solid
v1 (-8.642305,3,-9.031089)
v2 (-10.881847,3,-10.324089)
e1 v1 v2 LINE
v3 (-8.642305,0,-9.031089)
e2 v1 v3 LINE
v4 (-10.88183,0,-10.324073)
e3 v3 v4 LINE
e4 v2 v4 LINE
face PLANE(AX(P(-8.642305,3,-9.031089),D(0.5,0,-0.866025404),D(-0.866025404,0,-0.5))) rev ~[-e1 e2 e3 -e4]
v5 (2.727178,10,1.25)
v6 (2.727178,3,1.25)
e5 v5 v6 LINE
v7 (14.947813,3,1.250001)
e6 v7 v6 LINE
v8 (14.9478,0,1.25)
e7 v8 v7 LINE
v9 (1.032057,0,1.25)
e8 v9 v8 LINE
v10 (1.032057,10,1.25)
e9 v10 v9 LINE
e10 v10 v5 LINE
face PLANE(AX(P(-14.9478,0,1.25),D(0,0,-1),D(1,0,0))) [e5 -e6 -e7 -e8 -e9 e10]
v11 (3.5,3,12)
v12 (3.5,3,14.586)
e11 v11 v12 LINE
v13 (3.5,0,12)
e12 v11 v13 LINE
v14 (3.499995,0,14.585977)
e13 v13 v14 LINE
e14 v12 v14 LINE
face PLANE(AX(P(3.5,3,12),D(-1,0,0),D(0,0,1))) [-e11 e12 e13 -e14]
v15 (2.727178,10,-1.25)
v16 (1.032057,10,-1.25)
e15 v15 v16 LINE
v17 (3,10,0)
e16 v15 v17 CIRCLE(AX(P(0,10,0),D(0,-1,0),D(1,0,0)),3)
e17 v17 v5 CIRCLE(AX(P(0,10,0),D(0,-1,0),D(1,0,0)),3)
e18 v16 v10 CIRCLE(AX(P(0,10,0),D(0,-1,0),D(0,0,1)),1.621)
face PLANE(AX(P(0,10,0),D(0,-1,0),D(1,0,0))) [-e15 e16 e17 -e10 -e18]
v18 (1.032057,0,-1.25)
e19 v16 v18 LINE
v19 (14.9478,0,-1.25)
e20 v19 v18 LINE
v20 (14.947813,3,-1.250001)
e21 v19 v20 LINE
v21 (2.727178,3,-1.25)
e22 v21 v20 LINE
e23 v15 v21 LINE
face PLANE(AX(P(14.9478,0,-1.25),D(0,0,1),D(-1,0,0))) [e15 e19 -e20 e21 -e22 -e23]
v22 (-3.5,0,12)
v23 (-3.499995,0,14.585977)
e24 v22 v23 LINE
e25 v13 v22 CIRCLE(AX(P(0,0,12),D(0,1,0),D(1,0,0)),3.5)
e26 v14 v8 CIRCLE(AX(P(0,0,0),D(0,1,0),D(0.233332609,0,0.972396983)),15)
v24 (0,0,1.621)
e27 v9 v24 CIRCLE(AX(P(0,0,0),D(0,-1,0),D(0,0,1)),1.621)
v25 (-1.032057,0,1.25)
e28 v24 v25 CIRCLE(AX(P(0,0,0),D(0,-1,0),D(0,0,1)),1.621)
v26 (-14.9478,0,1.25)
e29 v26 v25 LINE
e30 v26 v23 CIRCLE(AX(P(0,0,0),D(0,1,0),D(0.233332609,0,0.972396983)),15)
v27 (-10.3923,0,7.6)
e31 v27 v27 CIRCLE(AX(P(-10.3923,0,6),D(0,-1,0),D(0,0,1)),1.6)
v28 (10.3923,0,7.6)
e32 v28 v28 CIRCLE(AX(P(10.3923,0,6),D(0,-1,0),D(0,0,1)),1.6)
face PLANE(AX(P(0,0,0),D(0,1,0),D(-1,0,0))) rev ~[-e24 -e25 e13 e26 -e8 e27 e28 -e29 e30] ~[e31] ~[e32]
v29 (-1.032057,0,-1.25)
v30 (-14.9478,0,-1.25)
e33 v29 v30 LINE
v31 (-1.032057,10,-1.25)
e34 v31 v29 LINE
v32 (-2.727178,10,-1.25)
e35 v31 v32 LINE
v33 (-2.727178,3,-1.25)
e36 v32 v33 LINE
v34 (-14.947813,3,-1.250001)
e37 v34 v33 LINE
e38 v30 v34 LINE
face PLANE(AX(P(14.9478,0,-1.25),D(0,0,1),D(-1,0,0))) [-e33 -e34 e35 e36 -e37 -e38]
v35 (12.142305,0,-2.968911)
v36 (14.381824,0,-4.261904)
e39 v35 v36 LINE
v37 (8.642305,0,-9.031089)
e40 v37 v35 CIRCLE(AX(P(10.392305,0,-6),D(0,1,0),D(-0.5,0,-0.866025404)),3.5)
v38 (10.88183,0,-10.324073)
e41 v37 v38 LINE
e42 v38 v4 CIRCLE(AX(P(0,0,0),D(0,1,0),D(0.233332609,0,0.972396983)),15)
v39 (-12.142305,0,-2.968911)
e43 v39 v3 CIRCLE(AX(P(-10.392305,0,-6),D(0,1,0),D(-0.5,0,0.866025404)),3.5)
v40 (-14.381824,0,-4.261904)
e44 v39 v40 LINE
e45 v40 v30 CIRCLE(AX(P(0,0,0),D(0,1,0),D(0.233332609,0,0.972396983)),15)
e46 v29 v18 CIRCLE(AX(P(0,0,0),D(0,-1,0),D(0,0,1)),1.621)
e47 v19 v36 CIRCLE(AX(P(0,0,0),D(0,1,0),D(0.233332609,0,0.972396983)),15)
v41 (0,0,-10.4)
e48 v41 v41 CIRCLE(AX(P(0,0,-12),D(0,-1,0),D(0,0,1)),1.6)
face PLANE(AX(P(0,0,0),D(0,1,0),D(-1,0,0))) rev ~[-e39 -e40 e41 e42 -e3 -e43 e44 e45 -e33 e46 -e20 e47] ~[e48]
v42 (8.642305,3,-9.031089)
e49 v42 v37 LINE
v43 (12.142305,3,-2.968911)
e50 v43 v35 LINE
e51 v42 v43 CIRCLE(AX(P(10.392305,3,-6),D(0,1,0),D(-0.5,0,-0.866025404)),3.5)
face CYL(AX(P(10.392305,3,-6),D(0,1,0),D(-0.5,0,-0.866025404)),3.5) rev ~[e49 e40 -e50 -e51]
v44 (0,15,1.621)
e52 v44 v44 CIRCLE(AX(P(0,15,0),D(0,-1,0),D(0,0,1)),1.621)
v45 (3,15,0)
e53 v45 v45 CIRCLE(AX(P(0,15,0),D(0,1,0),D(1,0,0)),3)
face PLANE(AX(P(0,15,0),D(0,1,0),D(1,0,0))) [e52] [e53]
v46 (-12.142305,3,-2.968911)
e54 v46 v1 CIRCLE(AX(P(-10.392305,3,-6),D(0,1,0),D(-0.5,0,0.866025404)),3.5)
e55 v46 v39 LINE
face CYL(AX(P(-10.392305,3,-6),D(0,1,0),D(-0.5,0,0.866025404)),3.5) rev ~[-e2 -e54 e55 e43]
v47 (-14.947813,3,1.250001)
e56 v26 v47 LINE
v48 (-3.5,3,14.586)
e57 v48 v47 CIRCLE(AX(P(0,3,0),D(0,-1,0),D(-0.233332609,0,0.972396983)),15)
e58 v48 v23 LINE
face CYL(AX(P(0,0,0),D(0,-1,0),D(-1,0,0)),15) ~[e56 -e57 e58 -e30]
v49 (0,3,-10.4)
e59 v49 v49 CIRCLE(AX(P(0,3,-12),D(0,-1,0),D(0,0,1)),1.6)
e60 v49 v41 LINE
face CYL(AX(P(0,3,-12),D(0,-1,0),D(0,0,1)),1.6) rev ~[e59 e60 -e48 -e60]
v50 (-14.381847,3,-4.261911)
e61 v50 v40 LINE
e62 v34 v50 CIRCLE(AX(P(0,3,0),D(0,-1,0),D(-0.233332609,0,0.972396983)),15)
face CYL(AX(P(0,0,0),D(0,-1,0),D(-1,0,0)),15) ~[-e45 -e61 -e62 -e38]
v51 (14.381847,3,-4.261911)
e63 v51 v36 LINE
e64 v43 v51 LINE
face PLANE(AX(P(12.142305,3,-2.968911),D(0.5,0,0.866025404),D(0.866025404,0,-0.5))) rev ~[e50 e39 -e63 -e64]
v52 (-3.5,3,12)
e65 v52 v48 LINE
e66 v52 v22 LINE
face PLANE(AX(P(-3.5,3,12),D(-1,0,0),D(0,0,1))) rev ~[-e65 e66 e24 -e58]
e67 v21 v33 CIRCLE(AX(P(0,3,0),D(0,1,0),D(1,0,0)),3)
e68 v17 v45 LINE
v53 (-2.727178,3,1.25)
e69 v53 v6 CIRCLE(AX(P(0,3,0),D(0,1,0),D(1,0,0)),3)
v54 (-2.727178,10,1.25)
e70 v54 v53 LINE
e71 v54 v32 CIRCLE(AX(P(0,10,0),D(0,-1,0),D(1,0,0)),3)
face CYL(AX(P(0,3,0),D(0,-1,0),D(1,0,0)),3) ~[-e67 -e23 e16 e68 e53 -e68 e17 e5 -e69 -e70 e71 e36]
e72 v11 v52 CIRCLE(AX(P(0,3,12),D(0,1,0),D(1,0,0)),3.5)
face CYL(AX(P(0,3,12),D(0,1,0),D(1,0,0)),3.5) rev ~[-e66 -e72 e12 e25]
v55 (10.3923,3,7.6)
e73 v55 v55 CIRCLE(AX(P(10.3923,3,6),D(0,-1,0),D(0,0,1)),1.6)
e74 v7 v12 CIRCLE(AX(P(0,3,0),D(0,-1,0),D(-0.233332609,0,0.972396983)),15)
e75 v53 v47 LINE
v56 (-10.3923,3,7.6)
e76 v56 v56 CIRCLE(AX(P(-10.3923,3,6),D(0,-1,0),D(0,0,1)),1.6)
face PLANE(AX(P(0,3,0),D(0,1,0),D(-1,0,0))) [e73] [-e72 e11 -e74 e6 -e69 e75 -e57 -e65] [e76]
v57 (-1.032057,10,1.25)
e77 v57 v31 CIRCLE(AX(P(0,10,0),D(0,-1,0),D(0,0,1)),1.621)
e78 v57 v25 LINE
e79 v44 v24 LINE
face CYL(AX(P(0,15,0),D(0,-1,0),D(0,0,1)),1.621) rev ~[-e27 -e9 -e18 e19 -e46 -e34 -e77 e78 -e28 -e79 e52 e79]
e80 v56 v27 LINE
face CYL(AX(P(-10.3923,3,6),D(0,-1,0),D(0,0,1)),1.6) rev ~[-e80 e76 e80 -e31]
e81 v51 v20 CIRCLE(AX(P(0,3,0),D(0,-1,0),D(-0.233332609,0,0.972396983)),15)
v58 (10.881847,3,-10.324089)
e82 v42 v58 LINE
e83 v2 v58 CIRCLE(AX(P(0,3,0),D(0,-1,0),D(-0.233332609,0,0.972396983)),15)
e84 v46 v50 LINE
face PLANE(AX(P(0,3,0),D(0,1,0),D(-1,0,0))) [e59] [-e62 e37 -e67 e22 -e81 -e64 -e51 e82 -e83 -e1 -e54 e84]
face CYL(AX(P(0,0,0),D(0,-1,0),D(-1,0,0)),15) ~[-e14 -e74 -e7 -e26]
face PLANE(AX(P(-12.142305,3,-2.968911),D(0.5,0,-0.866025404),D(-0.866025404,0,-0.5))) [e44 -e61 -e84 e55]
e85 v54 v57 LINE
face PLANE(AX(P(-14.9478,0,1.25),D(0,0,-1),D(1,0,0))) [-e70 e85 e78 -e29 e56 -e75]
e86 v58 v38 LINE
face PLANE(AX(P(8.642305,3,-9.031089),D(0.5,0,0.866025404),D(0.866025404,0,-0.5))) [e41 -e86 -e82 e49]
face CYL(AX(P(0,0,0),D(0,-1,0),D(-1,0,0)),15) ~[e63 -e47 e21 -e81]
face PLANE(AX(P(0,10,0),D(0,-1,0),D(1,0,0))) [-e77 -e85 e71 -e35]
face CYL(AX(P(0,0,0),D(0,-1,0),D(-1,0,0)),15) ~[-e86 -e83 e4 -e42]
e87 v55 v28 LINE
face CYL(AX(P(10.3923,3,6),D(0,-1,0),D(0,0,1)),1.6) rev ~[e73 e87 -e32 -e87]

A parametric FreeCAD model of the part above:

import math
import FreeCAD as App
import Part
import Sketcher

V = App.Vector
Q = App.Units.Quantity

doc = App.newDocument("Part")
body = doc.addObject("PartDesign::Body", "Body")

sketch1 = body.newObject("Sketcher::SketchObject", "Sketch")
sketch1.AttachmentSupport = (doc.getObject("XZ_Plane"), [""])
sketch1.MapMode = "FlatFace"
sketch1.addGeometry(Part.Circle(V(0, 0, 0), V(0, 0, 1), 15), False)
sketch1.addConstraint([
    Sketcher.Constraint("Coincident", 0, 3, -1, 1),
    Sketcher.Constraint("Diameter", 0, Q("30 mm")),
])
pad1 = body.newObject("PartDesign::Pad", "Pad")
pad1.Profile = sketch1
pad1.Length = 3
pad1.Reversed = True

sketch2 = body.newObject("Sketcher::SketchObject", "Sketch001")
sketch2.AttachmentSupport = (doc.getObject("XZ_Plane"), [""])
sketch2.MapMode = "FlatFace"
sketch2.AttachmentOffset = App.Placement(V(0, 0, -3), App.Rotation())
sketch2.addGeometry([
    Part.Circle(V(0, -12, 0), V(0, 0, 1), 1.6),
    Part.Circle(V(-10.3923, 6, 0), V(0, 0, 1), 1.6),
    Part.Circle(V(10.3923, 6, 0), V(0, 0, 1), 1.6),
], False)
sketch2.addConstraint([
    Sketcher.Constraint("Equal", 0, 1),
    Sketcher.Constraint("Equal", 1, 2),
    Sketcher.Constraint("Symmetric", 1, 3, 2, 3, -2),
    Sketcher.Constraint("PointOnObject", 0, 3, -2),
    Sketcher.Constraint("Diameter", 0, Q("3.2 mm")),
    Sketcher.Constraint("DistanceY", 0, 3, -1, 1, Q("12 mm")),
    Sketcher.Constraint("DistanceY", -1, 1, 1, 3, Q("6 mm")),
    Sketcher.Constraint("DistanceX", 1, 3, -1, 1, Q("10.3923 mm")),
])
doc.recompute()
hole = body.newObject("PartDesign::Hole", "Hole")
hole.Profile = sketch2
hole.ThreadType = "None"
hole.Diameter = 3.2
hole.DepthType = "ThroughAll"
hole.Reversed = True

sketch3 = body.newObject("Sketcher::SketchObject", "Sketch002")
sketch3.AttachmentSupport = (doc.getObject("XZ_Plane"), [""])
sketch3.MapMode = "FlatFace"
sketch3.AttachmentOffset = App.Placement(V(0, 0, -3), App.Rotation())
sketch3.addGeometry([
    Part.LineSegment(V(3.5, 14.586, 0), V(3.5, 12, 0)),
    Part.ArcOfCircle(Part.Circle(V(0, 12, 0), V(0, 0, 1), 3.5), math.radians(180), math.radians(360)),
    Part.LineSegment(V(-3.5, 12, 0), V(-3.5, 14.586, 0)),
    Part.ArcOfCircle(Part.Circle(V(0, 0, 0), V(0, 0, 1), 15), math.radians(76.506644), math.radians(103.493356)),
], False)
sketch3.addConstraint([
    Sketcher.Constraint("Tangent", 0, 2, 1, 2),
    Sketcher.Constraint("Tangent", 1, 1, 2, 1),
    Sketcher.Constraint("Coincident", 2, 2, 3, 2),
    Sketcher.Constraint("Coincident", 3, 1, 0, 1),
    Sketcher.Constraint("Vertical", 0),
    Sketcher.Constraint("Vertical", 2),
    Sketcher.Constraint("Coincident", 3, 3, -1, 1),
    Sketcher.Constraint("PointOnObject", 1, 3, -2),
    Sketcher.Constraint("Radius", 1, Q("3.5 mm")),
    Sketcher.Constraint("DistanceY", -1, 1, 1, 3, Q("12 mm")),
    Sketcher.Constraint("Radius", 3, Q("15 mm")),
])
pocket1 = body.newObject("PartDesign::Pocket", "Pocket")
pocket1.Profile = sketch3
pocket1.Type = "ThroughAll"
pocket1.Reversed = True
doc.recompute()

polarpattern = body.newObject("PartDesign::PolarPattern", "PolarPattern")
polarpattern.Originals = [pocket1]
polarpattern.Axis = (doc.getObject("Y_Axis"), [""])
polarpattern.Angle = 360
polarpattern.Occurrences = 3
body.Tip = polarpattern

sketch4 = body.newObject("Sketcher::SketchObject", "Sketch003")
sketch4.AttachmentSupport = (doc.getObject("XZ_Plane"), [""])
sketch4.MapMode = "FlatFace"
sketch4.AttachmentOffset = App.Placement(V(0, 0, -3), App.Rotation())
sketch4.addGeometry(Part.Circle(V(0, 0, 0), V(0, 0, 1), 3), False)
sketch4.addConstraint([
    Sketcher.Constraint("Coincident", 0, 3, -1, 1),
    Sketcher.Constraint("Diameter", 0, Q("6 mm")),
])
pad2 = body.newObject("PartDesign::Pad", "Pad001")
pad2.Profile = sketch4
pad2.Length = 12
pad2.Reversed = True

sketch5 = body.newObject("Sketcher::SketchObject", "Sketch004")
sketch5.AttachmentSupport = (doc.getObject("XZ_Plane"), [""])
sketch5.MapMode = "FlatFace"
sketch5.AttachmentOffset = App.Placement(V(0, 0, -15), App.Rotation())
sketch5.addGeometry(Part.Circle(V(0, 0, 0), V(0, 0, 1), 1.621), False)
sketch5.addConstraint([
    Sketcher.Constraint("Coincident", 0, 3, -1, 1),
    Sketcher.Constraint("Diameter", 0, Q("3.242 mm")),
])
doc.recompute()
hole2 = body.newObject("PartDesign::Hole", "Hole001")
hole2.Profile = sketch5
hole2.ThreadType = "None"
hole2.Diameter = 3.242
hole2.DepthType = "ThroughAll"
hole2.Reversed = True

sketch6 = body.newObject("Sketcher::SketchObject", "Sketch005")
sketch6.AttachmentSupport = (doc.getObject("XZ_Plane"), [""])
sketch6.MapMode = "FlatFace"
sketch6.addGeometry([
    Part.LineSegment(V(-14.9478, -1.25, 0), V(14.9478, -1.25, 0)),
    Part.ArcOfCircle(Part.Circle(V(0, 0, 0), V(0, 0, 1), 15.000047), math.radians(-4.7802), math.radians(4.7802)),
    Part.LineSegment(V(14.9478, 1.25, 0), V(-14.9478, 1.25, 0)),
    Part.ArcOfCircle(Part.Circle(V(0, 0, 0), V(0, 0, 1), 14.999974), math.radians(175.2198), math.radians(184.7802)),
], False)
sketch6.addConstraint([
    Sketcher.Constraint("Coincident", 0, 2, 1, 1),
    Sketcher.Constraint("Coincident", 1, 2, 2, 1),
    Sketcher.Constraint("Coincident", 2, 2, 3, 1),
    Sketcher.Constraint("Coincident", 3, 2, 0, 1),
    Sketcher.Constraint("Horizontal", 0),
    Sketcher.Constraint("Horizontal", 2),
    Sketcher.Constraint("Coincident", 1, 3, -1, 1),
    Sketcher.Constraint("Coincident", 3, 3, -1, 1),
    Sketcher.Constraint("Equal", 1, 3),
    Sketcher.Constraint("Vertical", 0, 2, 1, 2),
    Sketcher.Constraint("Radius", 1, Q("15 mm")),
    Sketcher.Constraint("DistanceY", 0, 2, -1, 1, Q("1.25 mm")),
])
pocket2 = body.newObject("PartDesign::Pocket", "Pocket001")
pocket2.Profile = sketch6
pocket2.Length = 10

doc.recompute()
